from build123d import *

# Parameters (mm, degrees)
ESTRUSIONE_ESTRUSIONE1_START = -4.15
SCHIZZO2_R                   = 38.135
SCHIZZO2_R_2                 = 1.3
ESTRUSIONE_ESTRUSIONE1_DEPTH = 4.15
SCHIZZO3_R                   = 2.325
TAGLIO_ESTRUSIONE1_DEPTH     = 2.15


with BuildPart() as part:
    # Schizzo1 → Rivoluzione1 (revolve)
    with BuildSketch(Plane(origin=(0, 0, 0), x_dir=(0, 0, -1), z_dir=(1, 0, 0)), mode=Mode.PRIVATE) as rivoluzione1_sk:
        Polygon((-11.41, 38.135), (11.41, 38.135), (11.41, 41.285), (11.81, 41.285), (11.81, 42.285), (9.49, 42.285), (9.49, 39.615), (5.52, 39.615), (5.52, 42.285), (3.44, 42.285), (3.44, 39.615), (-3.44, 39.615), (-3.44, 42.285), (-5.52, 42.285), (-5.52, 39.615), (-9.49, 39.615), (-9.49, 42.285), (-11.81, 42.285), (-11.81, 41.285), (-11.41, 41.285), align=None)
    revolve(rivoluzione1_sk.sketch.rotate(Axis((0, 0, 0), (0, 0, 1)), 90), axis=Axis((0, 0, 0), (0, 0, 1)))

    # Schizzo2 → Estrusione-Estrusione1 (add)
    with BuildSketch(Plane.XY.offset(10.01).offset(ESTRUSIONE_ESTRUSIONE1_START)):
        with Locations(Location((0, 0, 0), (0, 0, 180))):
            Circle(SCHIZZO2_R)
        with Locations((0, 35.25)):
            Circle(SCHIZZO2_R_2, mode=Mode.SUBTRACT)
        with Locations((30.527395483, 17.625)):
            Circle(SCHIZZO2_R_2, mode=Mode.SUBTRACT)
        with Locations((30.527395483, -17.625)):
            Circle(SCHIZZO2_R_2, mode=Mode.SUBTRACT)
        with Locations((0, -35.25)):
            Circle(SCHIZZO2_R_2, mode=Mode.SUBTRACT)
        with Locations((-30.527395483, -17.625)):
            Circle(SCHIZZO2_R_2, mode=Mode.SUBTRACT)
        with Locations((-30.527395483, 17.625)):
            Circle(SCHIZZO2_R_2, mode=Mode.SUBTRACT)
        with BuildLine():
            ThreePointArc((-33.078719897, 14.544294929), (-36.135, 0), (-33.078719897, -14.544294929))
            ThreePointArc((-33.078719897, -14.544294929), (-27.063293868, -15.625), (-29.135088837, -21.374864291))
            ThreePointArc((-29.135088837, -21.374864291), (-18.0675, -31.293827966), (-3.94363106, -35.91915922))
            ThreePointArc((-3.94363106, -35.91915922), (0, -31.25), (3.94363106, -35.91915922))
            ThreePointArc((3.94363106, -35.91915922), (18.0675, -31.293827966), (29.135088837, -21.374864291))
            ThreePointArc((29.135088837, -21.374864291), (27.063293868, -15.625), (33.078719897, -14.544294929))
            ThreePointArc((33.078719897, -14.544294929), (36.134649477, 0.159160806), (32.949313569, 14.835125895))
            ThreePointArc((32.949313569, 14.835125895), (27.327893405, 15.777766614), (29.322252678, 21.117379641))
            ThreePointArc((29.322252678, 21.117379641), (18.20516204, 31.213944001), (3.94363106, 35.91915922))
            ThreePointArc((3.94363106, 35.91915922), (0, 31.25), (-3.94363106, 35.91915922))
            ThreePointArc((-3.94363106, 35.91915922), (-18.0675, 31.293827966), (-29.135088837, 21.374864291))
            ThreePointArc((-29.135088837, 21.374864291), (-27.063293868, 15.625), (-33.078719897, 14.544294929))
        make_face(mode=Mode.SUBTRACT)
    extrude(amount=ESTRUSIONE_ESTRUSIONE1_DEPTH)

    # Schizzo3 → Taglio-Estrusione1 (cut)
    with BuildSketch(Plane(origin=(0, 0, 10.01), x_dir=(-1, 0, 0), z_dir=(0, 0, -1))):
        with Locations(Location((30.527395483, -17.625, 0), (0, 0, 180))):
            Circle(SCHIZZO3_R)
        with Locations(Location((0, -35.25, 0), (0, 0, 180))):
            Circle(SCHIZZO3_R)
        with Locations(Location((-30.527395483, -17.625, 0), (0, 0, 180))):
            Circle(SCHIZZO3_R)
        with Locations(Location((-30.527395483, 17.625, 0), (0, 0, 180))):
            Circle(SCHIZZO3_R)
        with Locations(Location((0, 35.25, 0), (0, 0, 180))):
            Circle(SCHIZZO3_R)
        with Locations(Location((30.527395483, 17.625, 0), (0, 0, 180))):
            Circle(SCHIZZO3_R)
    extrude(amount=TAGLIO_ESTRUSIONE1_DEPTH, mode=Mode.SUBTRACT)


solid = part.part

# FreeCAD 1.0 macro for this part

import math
import FreeCAD as App
import Part
import Sketcher

doc = App.newDocument("Part")
body = doc.addObject("PartDesign::Body", "Body")

sketch1 = doc.addObject("Sketcher::SketchObject", "Sketch")
body.addObject(sketch1)
sketch1.AttachmentSupport = (doc.YZ_Plane, [""])
sketch1.MapMode = "FlatFace"
sketch1.addGeometry(Part.LineSegment(App.Vector(38.13, 11.41, 0), App.Vector(38.13, -11.41, 0)), False)
sketch1.addGeometry(Part.LineSegment(App.Vector(38.13, -11.41, 0), App.Vector(41.28, -11.41, 0)), False)
sketch1.addGeometry(Part.LineSegment(App.Vector(41.28, -11.41, 0), App.Vector(41.28, -11.81, 0)), False)
sketch1.addGeometry(Part.LineSegment(App.Vector(41.28, -11.81, 0), App.Vector(42.28, -11.81, 0)), False)
sketch1.addGeometry(Part.LineSegment(App.Vector(42.28, -11.81, 0), App.Vector(42.28, -9.49, 0)), False)
sketch1.addGeometry(Part.LineSegment(App.Vector(42.28, -9.49, 0), App.Vector(39.62, -9.49, 0)), False)
sketch1.addGeometry(Part.LineSegment(App.Vector(39.62, -9.49, 0), App.Vector(39.62, -5.52, 0)), False)
sketch1.addGeometry(Part.LineSegment(App.Vector(39.62, -5.52, 0), App.Vector(42.28, -5.52, 0)), False)
sketch1.addGeometry(Part.LineSegment(App.Vector(42.28, -5.52, 0), App.Vector(42.28, -3.44, 0)), False)
sketch1.addGeometry(Part.LineSegment(App.Vector(42.28, -3.44, 0), App.Vector(39.62, -3.44, 0)), False)
sketch1.addGeometry(Part.LineSegment(App.Vector(39.62, -3.44, 0), App.Vector(39.62, 3.44, 0)), False)
sketch1.addGeometry(Part.LineSegment(App.Vector(39.62, 3.44, 0), App.Vector(42.28, 3.44, 0)), False)
sketch1.addGeometry(Part.LineSegment(App.Vector(42.28, 3.44, 0), App.Vector(42.28, 5.52, 0)), False)
sketch1.addGeometry(Part.LineSegment(App.Vector(42.28, 5.52, 0), App.Vector(39.62, 5.52, 0)), False)
sketch1.addGeometry(Part.LineSegment(App.Vector(39.62, 5.52, 0), App.Vector(39.62, 9.49, 0)), False)
sketch1.addGeometry(Part.LineSegment(App.Vector(39.62, 9.49, 0), App.Vector(42.28, 9.49, 0)), False)
sketch1.addGeometry(Part.LineSegment(App.Vector(42.28, 9.49, 0), App.Vector(42.28, 11.81, 0)), False)
sketch1.addGeometry(Part.LineSegment(App.Vector(42.28, 11.81, 0), App.Vector(41.28, 11.81, 0)), False)
sketch1.addGeometry(Part.LineSegment(App.Vector(41.28, 11.81, 0), App.Vector(41.28, 11.41, 0)), False)
sketch1.addGeometry(Part.LineSegment(App.Vector(41.28, 11.41, 0), App.Vector(38.13, 11.41, 0)), False)
sketch1.addConstraint(Sketcher.Constraint("Coincident", 0, 2, 1, 1))
sketch1.addConstraint(Sketcher.Constraint("Coincident", 1, 2, 2, 1))
sketch1.addConstraint(Sketcher.Constraint("Coincident", 2, 2, 3, 1))
sketch1.addConstraint(Sketcher.Constraint("Coincident", 3, 2, 4, 1))
sketch1.addConstraint(Sketcher.Constraint("Coincident", 4, 2, 5, 1))
sketch1.addConstraint(Sketcher.Constraint("Coincident", 5, 2, 6, 1))
sketch1.addConstraint(Sketcher.Constraint("Coincident", 6, 2, 7, 1))
sketch1.addConstraint(Sketcher.Constraint("Coincident", 7, 2, 8, 1))
sketch1.addConstraint(Sketcher.Constraint("Coincident", 8, 2, 9, 1))
sketch1.addConstraint(Sketcher.Constraint("Coincident", 9, 2, 10, 1))
sketch1.addConstraint(Sketcher.Constraint("Coincident", 10, 2, 11, 1))
sketch1.addConstraint(Sketcher.Constraint("Coincident", 11, 2, 12, 1))
sketch1.addConstraint(Sketcher.Constraint("Coincident", 12, 2, 13, 1))
sketch1.addConstraint(Sketcher.Constraint("Coincident", 13, 2, 14, 1))
sketch1.addConstraint(Sketcher.Constraint("Coincident", 14, 2, 15, 1))
sketch1.addConstraint(Sketcher.Constraint("Coincident", 15, 2, 16, 1))
sketch1.addConstraint(Sketcher.Constraint("Coincident", 16, 2, 17, 1))
sketch1.addConstraint(Sketcher.Constraint("Coincident", 17, 2, 18, 1))
sketch1.addConstraint(Sketcher.Constraint("Coincident", 18, 2, 19, 1))
sketch1.addConstraint(Sketcher.Constraint("Coincident", 19, 2, 0, 1))
sketch1.addConstraint(Sketcher.Constraint("Vertical", 0))
sketch1.addConstraint(Sketcher.Constraint("Horizontal", 1))
sketch1.addConstraint(Sketcher.Constraint("Vertical", 2))
sketch1.addConstraint(Sketcher.Constraint("Horizontal", 3))
sketch1.addConstraint(Sketcher.Constraint("Vertical", 4))
sketch1.addConstraint(Sketcher.Constraint("Horizontal", 5))
sketch1.addConstraint(Sketcher.Constraint("Vertical", 6))
sketch1.addConstraint(Sketcher.Constraint("Horizontal", 7))
sketch1.addConstraint(Sketcher.Constraint("Vertical", 8))
sketch1.addConstraint(Sketcher.Constraint("Horizontal", 9))
sketch1.addConstraint(Sketcher.Constraint("Vertical", 10))
sketch1.addConstraint(Sketcher.Constraint("Horizontal", 11))
sketch1.addConstraint(Sketcher.Constraint("Vertical", 12))
sketch1.addConstraint(Sketcher.Constraint("Horizontal", 13))
sketch1.addConstraint(Sketcher.Constraint("Vertical", 14))
sketch1.addConstraint(Sketcher.Constraint("Horizontal", 15))
sketch1.addConstraint(Sketcher.Constraint("Vertical", 16))
sketch1.addConstraint(Sketcher.Constraint("Horizontal", 17))
sketch1.addConstraint(Sketcher.Constraint("Vertical", 18))
sketch1.addConstraint(Sketcher.Constraint("Horizontal", 19))
sketch1.addConstraint(Sketcher.Constraint("Symmetric", 8, 2, 11, 2, -1))
sketch1.addConstraint(Sketcher.Constraint("Symmetric", 6, 2, 13, 2, -1))
sketch1.addConstraint(Sketcher.Constraint("Symmetric", 4, 2, 15, 2, -1))
sketch1.addConstraint(Sketcher.Constraint("Symmetric", 2, 2, 17, 2, -1))
sketch1.addConstraint(Sketcher.Constraint("Vertical", 4, 2, 7, 2))
sketch1.addConstraint(Sketcher.Constraint("Vertical", 6, 2, 9, 2))
sketch1.addConstraint(Sketcher.Constraint("Equal", 2, 18))
sketch1.addConstraint(Sketcher.Constraint("DistanceX", 3, 1, 3, 2, 1.0))
sketch1.addConstraint(Sketcher.Constraint("DistanceY", 2, 2, 2, 1, 0.4))
sketch1.addConstraint(Sketcher.Constraint("DistanceX", 1, 1, 1, 2, 3.15))
sketch1.addConstraint(Sketcher.Constraint("DistanceX", 5, 2, 5, 1, 2.67))
sketch1.addConstraint(Sketcher.Constraint("DistanceY", 0, 2, 0, 1, 22.82))
sketch1.addConstraint(Sketcher.Constraint("DistanceY", 4, 1, 4, 2, 2.32))
sketch1.addConstraint(Sketcher.Constraint("DistanceY", 6, 1, 6, 2, 3.97))
sketch1.addConstraint(Sketcher.Constraint("DistanceY", 8, 1, 8, 2, 2.08))
sketch1.addConstraint(Sketcher.Constraint("DistanceX", -1, 1, 0, 2, 38.135))
revolution = doc.addObject("PartDesign::Revolution", "Revolution")
body.addObject(revolution)
revolution.Profile = sketch1
revolution.ReferenceAxis = (sketch1, ["V_Axis"])
revolution.Angle = 360

sketch2 = doc.addObject("Sketcher::SketchObject", "Sketch001")
body.addObject(sketch2)
sketch2.AttachmentSupport = (doc.XY_Plane, [""])
sketch2.MapMode = "FlatFace"
sketch2.AttachmentOffset = App.Placement(App.Vector(0, 0, 5.86), App.Rotation())
sketch2.addGeometry(Part.Circle(App.Vector(0, 0, 0), App.Vector(0, 0, 1), 38.1), False)
sketch2.addGeometry(Part.Circle(App.Vector(0, 35.2, 0), App.Vector(0, 0, 1), 1.3), False)
sketch2.addGeometry(Part.Circle(App.Vector(30.5, 17.6, 0), App.Vector(0, 0, 1), 1.3), False)
sketch2.addGeometry(Part.Circle(App.Vector(-30.5, 17.6, 0), App.Vector(0, 0, 1), 1.3), False)
sketch2.addGeometry(Part.Circle(App.Vector(30.5, -17.6, 0), App.Vector(0, 0, 1), 1.3), False)
sketch2.addGeometry(Part.Circle(App.Vector(0, -35.2, 0), App.Vector(0, 0, 1), 1.3), False)
sketch2.addGeometry(Part.ArcOfCircle(Part.Circle(App.Vector(0, 0, 0), App.Vector(0, 0, 1), 36.1), math.radians(156), math.radians(204)), False)
sketch2.addGeometry(Part.ArcOfCircle(Part.Circle(App.Vector(-30.5, 17.6, 0), App.Vector(0, 0, 1), 4), math.radians(-130), math.radians(70)), False)
sketch2.addGeometry(Part.ArcOfCircle(Part.Circle(App.Vector(0, 0, 0), App.Vector(0, 0, 1), 36.1), math.radians(96), math.radians(144)), False)
sketch2.addGeometry(Part.ArcOfCircle(Part.Circle(App.Vector(0, 35.2, 0), App.Vector(0, 0, 1), 4), math.radians(170), math.radians(370)), False)
sketch2.addGeometry(Part.ArcOfCircle(Part.Circle(App.Vector(0, 0, 0), App.Vector(0, 0, 1), 36.1), math.radians(36), math.radians(84)), False)
sketch2.addGeometry(Part.ArcOfCircle(Part.Circle(App.Vector(30.5, 17.6, 0), App.Vector(0, 0, 1), 3.7), math.radians(109), math.radians(311)), False)
sketch2.addGeometry(Part.ArcOfCircle(Part.Circle(App.Vector(0, 0, 0), App.Vector(0, 0, 1), 36.1), math.radians(-24), math.radians(24)), False)
sketch2.addGeometry(Part.ArcOfCircle(Part.Circle(App.Vector(30.5, -17.6, 0), App.Vector(0, 0, 1), 4), math.radians(50), math.radians(250)), False)
sketch2.addGeometry(Part.ArcOfCircle(Part.Circle(App.Vector(0, 0, 0), App.Vector(0, 0, 1), 36.1), math.radians(-84), math.radians(-36)), False)
sketch2.addGeometry(Part.ArcOfCircle(Part.Circle(App.Vector(0, -35.2, 0), App.Vector(0, 0, 1), 4), math.radians(-10), math.radians(190)), False)
sketch2.addGeometry(Part.ArcOfCircle(Part.Circle(App.Vector(0, 0, 0), App.Vector(0, 0, 1), 36.1), math.radians(-144), math.radians(-96)), False)
sketch2.addGeometry(Part.ArcOfCircle(Part.Circle(App.Vector(-30.5, -17.6, 0), App.Vector(0, 0, 1), 4), math.radians(-70), math.radians(130)), False)
sketch2.addGeometry(Part.Circle(App.Vector(-30.5, -17.6, 0), App.Vector(0, 0, 1), 1.3), False)
sketch2.addConstraint(Sketcher.Constraint("Coincident", 6, 1, 7, 1))
sketch2.addConstraint(Sketcher.Constraint("Coincident", 7, 2, 8, 2))
sketch2.addConstraint(Sketcher.Constraint("Coincident", 8, 1, 9, 1))
sketch2.addConstraint(Sketcher.Constraint("Coincident", 9, 2, 10, 2))
sketch2.addConstraint(Sketcher.Constraint("Coincident", 10, 1, 11, 1))
sketch2.addConstraint(Sketcher.Constraint("Coincident", 11, 2, 12, 2))
sketch2.addConstraint(Sketcher.Constraint("Coincident", 12, 1, 13, 1))
sketch2.addConstraint(Sketcher.Constraint("Coincident", 13, 2, 14, 2))
sketch2.addConstraint(Sketcher.Constraint("Coincident", 14, 1, 15, 1))
sketch2.addConstraint(Sketcher.Constraint("Coincident", 15, 2, 16, 2))
sketch2.addConstraint(Sketcher.Constraint("Coincident", 16, 1, 17, 1))
sketch2.addConstraint(Sketcher.Constraint("Coincident", 17, 2, 6, 2))
sketch2.addConstraint(Sketcher.Constraint("Coincident", 0, 3, -1, 1))
sketch2.addConstraint(Sketcher.Constraint("Coincident", 6, 3, -1, 1))
sketch2.addConstraint(Sketcher.Constraint("Coincident", 8, 3, -1, 1))
sketch2.addConstraint(Sketcher.Constraint("Coincident", 10, 3, -1, 1))
sketch2.addConstraint(Sketcher.Constraint("Coincident", 12, 3, -1, 1))
sketch2.addConstraint(Sketcher.Constraint("Coincident", 14, 3, -1, 1))
sketch2.addConstraint(Sketcher.Constraint("Coincident", 16, 3, -1, 1))
sketch2.addConstraint(Sketcher.Constraint("Coincident", 7, 3, 3, 3))
sketch2.addConstraint(Sketcher.Constraint("Coincident", 9, 3, 1, 3))
sketch2.addConstraint(Sketcher.Constraint("Coincident", 11, 3, 2, 3))
sketch2.addConstraint(Sketcher.Constraint("Coincident", 13, 3, 4, 3))
sketch2.addConstraint(Sketcher.Constraint("Coincident", 15, 3, 5, 3))
sketch2.addConstraint(Sketcher.Constraint("Coincident", 18, 3, 17, 3))
sketch2.addConstraint(Sketcher.Constraint("Equal", 1, 2))
sketch2.addConstraint(Sketcher.Constraint("Equal", 2, 3))
sketch2.addConstraint(Sketcher.Constraint("Equal", 3, 4))
sketch2.addConstraint(Sketcher.Constraint("Equal", 4, 5))
sketch2.addConstraint(Sketcher.Constraint("Equal", 6, 8))
sketch2.addConstraint(Sketcher.Constraint("Equal", 7, 9))
sketch2.addConstraint(Sketcher.Constraint("Equal", 8, 10))
sketch2.addConstraint(Sketcher.Constraint("Equal", 10, 12))
sketch2.addConstraint(Sketcher.Constraint("Equal", 9, 13))
sketch2.addConstraint(Sketcher.Constraint("Equal", 12, 14))
sketch2.addConstraint(Sketcher.Constraint("Equal", 13, 15))
sketch2.addConstraint(Sketcher.Constraint("Equal", 14, 16))
sketch2.addConstraint(Sketcher.Constraint("Equal", 15, 17))
sketch2.addConstraint(Sketcher.Constraint("Equal", 5, 18))
sketch2.addConstraint(Sketcher.Constraint("Symmetric", 3, 3, 4, 3, -1, 1))
sketch2.addConstraint(Sketcher.Constraint("Symmetric", 1, 3, 5, 3, -1, 1))
sketch2.addConstraint(Sketcher.Constraint("Symmetric", 2, 3, 17, 3, -1, 1))
sketch2.addConstraint(Sketcher.Constraint("Symmetric", 2, 3, 3, 3, -2))
sketch2.addConstraint(Sketcher.Constraint("PointOnObject", 1, 3, -2))
sketch2.addConstraint(Sketcher.Constraint("Radius", 7, 4.0))
sketch2.addConstraint(Sketcher.Constraint("Diameter", 1, 2.6))
sketch2.addConstraint(Sketcher.Constraint("Diameter", 0, 76.27))
sketch2.addConstraint(Sketcher.Constraint("Radius", 6, 36.135))
sketch2.addConstraint(Sketcher.Constraint("DistanceY", 5, 3, 1, 3, 70.5))
sketch2.addConstraint(Sketcher.Constraint("DistanceY", 4, 3, 2, 3, 35.25))
sketch2.addConstraint(Sketcher.Constraint("Radius", 11, 3.694467))
sketch2.addConstraint(Sketcher.Constraint("DistanceX", 6, 1, -1, 1, 33.07872))
pad1 = doc.addObject("PartDesign::Pad", "Pad")
body.addObject(pad1)
pad1.Profile = sketch2
pad1.Length = 4.15

sketch3 = doc.addObject("Sketcher::SketchObject", "Sketch002")
body.addObject(sketch3)
sketch3.AttachmentSupport = (doc.XY_Plane, [""])
sketch3.MapMode = "FlatFace"
sketch3.AttachmentOffset = App.Placement(App.Vector(0, 0, 10.01), App.Rotation())
sketch3.addGeometry(Part.Circle(App.Vector(-30.5, -17.6, 0), App.Vector(0, 0, 1), 2.3), False)
sketch3.addGeometry(Part.Circle(App.Vector(0, -35.2, 0), App.Vector(0, 0, 1), 2.3), False)
sketch3.addGeometry(Part.Circle(App.Vector(30.5, -17.6, 0), App.Vector(0, 0, 1), 2.3), False)
sketch3.addGeometry(Part.Circle(App.Vector(30.5, 17.6, 0), App.Vector(0, 0, 1), 2.3), False)
sketch3.addGeometry(Part.Circle(App.Vector(0, 35.2, 0), App.Vector(0, 0, 1), 2.3), False)
sketch3.addGeometry(Part.Circle(App.Vector(-30.5, 17.6, 0), App.Vector(0, 0, 1), 2.3), False)
sketch3.addConstraint(Sketcher.Constraint("Equal", 0, 1))
sketch3.addConstraint(Sketcher.Constraint("Equal", 1, 2))
sketch3.addConstraint(Sketcher.Constraint("Equal", 2, 3))
sketch3.addConstraint(Sketcher.Constraint("Equal", 3, 4))
sketch3.addConstraint(Sketcher.Constraint("Equal", 4, 5))
sketch3.addConstraint(Sketcher.Constraint("Symmetric", 0, 3, 3, 3, -1, 1))
sketch3.addConstraint(Sketcher.Constraint("Symmetric", 1, 3, 4, 3, -1, 1))
sketch3.addConstraint(Sketcher.Constraint("Symmetric", 2, 3, 5, 3, -1, 1))
sketch3.addConstraint(Sketcher.Constraint("Symmetric", 0, 3, 2, 3, -2))
sketch3.addConstraint(Sketcher.Constraint("PointOnObject", 1, 3, -2))
sketch3.addConstraint(Sketcher.Constraint("Diameter", 0, 4.65))
sketch3.addConstraint(Sketcher.Constraint("DistanceY", 1, 3, 4, 3, 70.5))
sketch3.addConstraint(Sketcher.Constraint("DistanceY", 2, 3, 3, 3, 35.25))
sketch3.addConstraint(Sketcher.Constraint("DistanceX", 0, 3, 2, 3, 61.054791))
pocket1 = doc.addObject("PartDesign::Pocket", "Pocket")
body.addObject(pocket1)
pocket1.Profile = sketch3
pocket1.Length = 2.15

doc.recompute()
